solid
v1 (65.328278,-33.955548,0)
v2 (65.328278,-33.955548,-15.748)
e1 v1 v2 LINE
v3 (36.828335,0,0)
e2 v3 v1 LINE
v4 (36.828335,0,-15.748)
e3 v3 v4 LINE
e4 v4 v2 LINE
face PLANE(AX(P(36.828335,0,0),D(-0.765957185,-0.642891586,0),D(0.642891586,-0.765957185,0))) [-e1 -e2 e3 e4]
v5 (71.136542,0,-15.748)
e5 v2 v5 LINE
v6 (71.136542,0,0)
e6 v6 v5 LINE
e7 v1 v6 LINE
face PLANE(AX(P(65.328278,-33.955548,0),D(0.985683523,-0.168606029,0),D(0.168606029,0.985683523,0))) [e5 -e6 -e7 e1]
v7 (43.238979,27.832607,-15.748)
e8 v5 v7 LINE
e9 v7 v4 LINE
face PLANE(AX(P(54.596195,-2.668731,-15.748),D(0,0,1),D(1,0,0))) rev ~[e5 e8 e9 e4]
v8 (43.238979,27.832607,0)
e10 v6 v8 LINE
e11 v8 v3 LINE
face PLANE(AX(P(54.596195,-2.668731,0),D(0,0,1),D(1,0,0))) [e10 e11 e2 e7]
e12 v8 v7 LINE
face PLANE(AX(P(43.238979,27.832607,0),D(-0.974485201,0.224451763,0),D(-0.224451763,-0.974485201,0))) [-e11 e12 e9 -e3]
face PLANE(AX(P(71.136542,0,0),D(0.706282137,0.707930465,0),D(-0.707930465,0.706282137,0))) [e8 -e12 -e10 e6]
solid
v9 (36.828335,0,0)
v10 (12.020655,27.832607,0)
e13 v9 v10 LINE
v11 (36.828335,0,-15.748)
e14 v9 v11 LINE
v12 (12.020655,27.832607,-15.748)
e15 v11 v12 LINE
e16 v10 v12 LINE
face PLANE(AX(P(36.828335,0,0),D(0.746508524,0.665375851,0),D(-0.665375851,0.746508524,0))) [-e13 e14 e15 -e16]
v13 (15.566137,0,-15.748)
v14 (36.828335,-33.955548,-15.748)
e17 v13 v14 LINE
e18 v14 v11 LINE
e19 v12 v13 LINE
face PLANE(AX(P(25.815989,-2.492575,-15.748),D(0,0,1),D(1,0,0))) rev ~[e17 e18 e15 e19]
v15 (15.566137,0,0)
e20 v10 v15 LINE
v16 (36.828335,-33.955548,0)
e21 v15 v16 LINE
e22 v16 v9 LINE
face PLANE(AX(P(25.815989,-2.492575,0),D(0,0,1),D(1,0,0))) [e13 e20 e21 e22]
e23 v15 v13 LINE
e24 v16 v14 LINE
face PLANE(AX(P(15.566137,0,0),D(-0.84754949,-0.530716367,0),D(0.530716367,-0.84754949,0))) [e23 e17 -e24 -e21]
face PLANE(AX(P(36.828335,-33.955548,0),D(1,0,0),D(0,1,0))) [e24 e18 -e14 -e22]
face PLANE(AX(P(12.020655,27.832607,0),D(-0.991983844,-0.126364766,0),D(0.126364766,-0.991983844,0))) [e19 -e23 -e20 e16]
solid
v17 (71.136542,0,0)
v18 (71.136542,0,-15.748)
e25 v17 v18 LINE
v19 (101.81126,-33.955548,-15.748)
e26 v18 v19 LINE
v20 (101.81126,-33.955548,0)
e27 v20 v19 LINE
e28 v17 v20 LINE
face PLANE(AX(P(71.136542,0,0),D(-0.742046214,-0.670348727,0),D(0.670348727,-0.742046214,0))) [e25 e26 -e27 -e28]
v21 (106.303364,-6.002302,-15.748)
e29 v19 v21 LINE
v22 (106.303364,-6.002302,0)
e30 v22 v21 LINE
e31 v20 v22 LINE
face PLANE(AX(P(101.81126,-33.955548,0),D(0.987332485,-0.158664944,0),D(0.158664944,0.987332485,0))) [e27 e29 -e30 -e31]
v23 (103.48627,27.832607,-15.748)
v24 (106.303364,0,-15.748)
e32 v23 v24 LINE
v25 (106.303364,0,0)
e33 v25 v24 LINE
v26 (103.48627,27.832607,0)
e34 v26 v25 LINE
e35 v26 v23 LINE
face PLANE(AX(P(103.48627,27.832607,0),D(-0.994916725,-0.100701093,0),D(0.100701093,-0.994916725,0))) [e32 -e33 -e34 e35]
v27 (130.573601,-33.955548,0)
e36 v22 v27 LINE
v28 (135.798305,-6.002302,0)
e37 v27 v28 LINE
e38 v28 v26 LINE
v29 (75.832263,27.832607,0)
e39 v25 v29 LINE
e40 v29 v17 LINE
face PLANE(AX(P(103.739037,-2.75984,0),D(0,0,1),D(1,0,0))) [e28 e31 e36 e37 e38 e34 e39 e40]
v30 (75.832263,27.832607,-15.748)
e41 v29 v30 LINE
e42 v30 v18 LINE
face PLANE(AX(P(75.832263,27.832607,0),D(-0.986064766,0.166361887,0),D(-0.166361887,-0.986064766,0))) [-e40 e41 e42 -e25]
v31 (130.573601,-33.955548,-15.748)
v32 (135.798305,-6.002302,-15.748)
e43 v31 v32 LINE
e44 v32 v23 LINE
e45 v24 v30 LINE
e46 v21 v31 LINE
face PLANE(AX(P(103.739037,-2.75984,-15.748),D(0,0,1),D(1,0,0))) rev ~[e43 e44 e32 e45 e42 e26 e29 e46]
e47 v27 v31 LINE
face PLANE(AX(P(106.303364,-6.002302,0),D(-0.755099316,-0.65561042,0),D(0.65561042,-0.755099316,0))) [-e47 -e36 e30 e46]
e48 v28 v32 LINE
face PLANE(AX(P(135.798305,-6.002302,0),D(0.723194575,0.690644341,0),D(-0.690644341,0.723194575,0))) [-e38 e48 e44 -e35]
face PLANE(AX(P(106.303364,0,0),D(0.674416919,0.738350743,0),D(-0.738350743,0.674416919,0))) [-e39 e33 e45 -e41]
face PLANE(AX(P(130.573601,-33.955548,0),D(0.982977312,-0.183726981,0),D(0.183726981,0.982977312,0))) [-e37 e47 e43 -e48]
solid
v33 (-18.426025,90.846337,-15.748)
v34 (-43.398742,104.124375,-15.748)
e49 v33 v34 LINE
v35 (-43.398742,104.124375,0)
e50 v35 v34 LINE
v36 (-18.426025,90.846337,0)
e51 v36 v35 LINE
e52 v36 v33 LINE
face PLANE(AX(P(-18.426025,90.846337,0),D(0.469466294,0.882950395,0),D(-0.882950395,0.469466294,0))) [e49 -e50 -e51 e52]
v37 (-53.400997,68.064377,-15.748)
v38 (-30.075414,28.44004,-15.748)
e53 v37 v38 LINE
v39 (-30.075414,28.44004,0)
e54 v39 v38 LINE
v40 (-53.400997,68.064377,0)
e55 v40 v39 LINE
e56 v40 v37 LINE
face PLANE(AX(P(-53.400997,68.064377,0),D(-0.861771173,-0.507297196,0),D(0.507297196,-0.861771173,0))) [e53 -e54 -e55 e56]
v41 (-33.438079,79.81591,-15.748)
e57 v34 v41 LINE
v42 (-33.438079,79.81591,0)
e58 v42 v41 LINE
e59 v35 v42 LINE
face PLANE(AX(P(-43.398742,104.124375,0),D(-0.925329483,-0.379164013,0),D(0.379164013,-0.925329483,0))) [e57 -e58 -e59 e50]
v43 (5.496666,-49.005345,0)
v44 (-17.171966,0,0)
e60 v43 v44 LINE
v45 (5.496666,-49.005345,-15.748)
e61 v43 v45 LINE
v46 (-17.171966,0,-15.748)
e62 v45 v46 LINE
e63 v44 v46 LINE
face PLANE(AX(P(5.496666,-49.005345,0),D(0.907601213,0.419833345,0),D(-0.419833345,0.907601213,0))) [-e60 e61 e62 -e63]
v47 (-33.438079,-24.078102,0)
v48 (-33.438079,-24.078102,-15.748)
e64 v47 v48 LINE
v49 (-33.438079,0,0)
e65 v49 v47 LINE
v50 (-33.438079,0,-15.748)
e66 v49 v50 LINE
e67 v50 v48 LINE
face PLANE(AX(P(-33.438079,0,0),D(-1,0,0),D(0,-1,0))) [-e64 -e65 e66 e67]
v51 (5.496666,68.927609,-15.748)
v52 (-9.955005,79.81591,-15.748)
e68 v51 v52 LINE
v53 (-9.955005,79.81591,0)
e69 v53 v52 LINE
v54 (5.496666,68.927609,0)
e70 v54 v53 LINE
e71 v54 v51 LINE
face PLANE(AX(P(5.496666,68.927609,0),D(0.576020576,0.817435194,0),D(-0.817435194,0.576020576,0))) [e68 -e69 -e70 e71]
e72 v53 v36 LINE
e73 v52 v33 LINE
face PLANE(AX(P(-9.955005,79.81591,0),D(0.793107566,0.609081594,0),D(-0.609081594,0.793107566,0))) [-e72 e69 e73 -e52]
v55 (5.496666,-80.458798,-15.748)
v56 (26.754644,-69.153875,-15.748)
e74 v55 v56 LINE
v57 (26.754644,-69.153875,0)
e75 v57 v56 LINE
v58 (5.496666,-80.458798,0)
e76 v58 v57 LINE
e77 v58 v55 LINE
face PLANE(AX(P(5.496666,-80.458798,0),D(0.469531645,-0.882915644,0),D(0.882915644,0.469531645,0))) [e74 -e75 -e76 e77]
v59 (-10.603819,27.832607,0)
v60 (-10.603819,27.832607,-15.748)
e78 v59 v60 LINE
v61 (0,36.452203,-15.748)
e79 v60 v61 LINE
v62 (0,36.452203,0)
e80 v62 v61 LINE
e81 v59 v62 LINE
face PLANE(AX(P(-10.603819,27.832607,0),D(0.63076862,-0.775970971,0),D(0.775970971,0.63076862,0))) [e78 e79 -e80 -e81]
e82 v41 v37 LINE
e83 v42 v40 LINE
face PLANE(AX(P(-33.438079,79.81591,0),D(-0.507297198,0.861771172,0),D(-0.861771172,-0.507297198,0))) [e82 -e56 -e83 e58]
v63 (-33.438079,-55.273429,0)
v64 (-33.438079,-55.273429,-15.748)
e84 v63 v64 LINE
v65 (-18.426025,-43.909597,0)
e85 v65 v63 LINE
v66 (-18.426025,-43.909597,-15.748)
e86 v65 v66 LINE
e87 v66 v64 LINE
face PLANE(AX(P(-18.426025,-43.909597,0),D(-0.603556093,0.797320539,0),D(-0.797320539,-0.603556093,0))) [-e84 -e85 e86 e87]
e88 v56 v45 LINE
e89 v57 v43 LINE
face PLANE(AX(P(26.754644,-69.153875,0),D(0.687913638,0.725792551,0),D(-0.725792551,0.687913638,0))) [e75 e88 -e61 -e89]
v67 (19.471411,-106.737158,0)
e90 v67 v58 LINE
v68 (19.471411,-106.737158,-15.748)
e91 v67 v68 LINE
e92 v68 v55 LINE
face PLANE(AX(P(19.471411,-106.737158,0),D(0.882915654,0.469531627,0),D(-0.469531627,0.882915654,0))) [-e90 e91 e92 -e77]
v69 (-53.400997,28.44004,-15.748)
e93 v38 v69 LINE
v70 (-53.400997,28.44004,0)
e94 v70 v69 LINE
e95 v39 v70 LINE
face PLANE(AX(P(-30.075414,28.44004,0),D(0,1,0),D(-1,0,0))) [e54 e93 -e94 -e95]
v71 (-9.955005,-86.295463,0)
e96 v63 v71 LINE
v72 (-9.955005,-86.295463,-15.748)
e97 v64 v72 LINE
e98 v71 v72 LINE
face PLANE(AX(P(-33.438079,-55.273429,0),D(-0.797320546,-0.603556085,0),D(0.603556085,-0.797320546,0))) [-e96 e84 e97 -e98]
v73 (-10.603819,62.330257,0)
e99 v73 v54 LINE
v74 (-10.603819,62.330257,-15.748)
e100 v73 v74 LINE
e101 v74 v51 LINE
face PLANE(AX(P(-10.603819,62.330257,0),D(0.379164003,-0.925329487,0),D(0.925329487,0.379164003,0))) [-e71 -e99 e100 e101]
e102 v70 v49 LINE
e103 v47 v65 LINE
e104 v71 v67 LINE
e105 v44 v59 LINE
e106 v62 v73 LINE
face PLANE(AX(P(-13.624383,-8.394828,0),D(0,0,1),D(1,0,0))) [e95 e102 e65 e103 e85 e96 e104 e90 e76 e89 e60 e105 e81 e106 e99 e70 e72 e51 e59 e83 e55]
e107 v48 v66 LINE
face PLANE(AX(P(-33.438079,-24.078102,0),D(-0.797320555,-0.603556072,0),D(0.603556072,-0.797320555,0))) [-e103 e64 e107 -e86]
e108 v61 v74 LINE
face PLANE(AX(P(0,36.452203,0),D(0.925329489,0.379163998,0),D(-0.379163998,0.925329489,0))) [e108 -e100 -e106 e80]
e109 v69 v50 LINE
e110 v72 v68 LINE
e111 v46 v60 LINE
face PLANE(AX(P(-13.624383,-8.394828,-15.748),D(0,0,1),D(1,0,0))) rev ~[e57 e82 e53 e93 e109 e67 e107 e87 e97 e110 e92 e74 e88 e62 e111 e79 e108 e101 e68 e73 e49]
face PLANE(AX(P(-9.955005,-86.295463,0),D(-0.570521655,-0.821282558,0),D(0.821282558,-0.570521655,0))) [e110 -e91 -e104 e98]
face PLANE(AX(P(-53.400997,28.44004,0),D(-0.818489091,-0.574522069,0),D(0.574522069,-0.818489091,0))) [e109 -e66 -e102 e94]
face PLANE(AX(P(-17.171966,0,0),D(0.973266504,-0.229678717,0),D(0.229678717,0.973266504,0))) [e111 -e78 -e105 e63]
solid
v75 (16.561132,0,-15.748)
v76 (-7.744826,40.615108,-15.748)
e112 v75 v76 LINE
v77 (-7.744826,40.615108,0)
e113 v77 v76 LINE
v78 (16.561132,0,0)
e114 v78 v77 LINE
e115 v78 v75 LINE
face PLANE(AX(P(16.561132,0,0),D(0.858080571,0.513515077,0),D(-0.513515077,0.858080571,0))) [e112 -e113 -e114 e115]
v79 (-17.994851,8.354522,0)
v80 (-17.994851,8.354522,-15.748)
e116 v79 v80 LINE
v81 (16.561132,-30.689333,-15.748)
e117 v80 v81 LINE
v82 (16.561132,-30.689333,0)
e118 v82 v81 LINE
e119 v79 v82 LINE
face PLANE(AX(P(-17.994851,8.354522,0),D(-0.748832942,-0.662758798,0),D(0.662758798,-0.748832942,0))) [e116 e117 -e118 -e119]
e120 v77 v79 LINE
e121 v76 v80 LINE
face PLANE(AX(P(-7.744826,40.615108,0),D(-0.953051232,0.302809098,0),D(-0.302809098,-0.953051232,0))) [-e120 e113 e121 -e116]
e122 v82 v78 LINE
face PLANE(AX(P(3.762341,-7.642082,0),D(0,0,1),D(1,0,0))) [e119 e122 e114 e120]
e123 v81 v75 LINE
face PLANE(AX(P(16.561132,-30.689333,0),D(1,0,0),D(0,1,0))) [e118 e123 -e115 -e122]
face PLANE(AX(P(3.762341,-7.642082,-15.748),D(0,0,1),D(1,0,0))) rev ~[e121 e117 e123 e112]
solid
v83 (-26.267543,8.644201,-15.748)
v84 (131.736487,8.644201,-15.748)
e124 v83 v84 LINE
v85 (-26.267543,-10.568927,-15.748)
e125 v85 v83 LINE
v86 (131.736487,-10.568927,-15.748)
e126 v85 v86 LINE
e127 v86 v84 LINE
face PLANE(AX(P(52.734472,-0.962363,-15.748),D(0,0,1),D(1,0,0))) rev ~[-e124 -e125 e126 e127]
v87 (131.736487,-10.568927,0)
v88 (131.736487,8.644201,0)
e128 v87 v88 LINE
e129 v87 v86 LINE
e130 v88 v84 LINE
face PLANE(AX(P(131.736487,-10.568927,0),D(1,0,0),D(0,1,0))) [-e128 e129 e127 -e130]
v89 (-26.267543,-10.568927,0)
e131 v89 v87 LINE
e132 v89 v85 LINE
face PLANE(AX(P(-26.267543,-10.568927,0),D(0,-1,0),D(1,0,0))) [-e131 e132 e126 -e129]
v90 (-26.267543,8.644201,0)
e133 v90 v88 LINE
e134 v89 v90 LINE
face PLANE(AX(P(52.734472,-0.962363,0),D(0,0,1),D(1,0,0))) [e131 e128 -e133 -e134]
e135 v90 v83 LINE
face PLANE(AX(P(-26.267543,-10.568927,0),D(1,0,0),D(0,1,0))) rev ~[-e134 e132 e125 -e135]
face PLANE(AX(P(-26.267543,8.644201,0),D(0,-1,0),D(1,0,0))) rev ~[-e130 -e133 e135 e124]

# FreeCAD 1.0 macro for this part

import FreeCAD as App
import Part
import Sketcher
Q = App.Units.Quantity


def add_polygon(sketch, points):
    """Adds a closed chain of lines whose ends are joined by coincident constraints."""
    first, n = sketch.GeometryCount, len(points)
    for a, b in zip(points, points[1:] + points[:1]):
        sketch.addGeometry(Part.LineSegment(App.Vector(*a, 0), App.Vector(*b, 0)), False)
    for i in range(n):
        sketch.addConstraint(Sketcher.Constraint("Coincident", first + i, 2, first + (i + 1) % n, 1))

doc = App.newDocument("Part")
params = doc.addObject("Spreadsheet::Sheet", "Params")
for row, (alias, value) in enumerate([
    ("pad1_length", "0.62 in"),
    ("pad2_length", "0.62 in"),
    ("pad3_length", "0.62 in"),
], start=1):
    params.set(f"A{row}", alias)
    params.set(f"B{row}", "=" + value)
    params.setAlias(f"B{row}", alias)

body = doc.addObject("PartDesign::Body", "Body")
body.AllowCompound = True

# Sketch on XY plane
sketch1 = body.newObject("Sketcher::SketchObject", "Sketch")
sketch1.AttachmentSupport = (doc.getObject("XY_Plane"), [""])
sketch1.MapMode = "FlatFace"
add_polygon(sketch1, [(5.496666, -49.005345), (-17.171966, 0), (-10.603819, 27.832607), (0, 36.452203), (-10.603819, 62.330257), (5.496666, 68.927609), (-9.955005, 79.81591), (-18.426025, 90.846337), (-43.398742, 104.124375), (-33.438079, 79.81591), (-53.400997, 68.064377), (-30.075414, 28.44004), (-53.400997, 28.44004), (-33.438079, 0), (-33.438079, -24.078102), (-18.426025, -43.909597), (-33.438079, -55.273429), (-9.955005, -86.295463), (19.471411, -106.737158), (5.496666, -80.458798), (26.754644, -69.153875)])  # lines 0-20
add_polygon(sketch1, [(12.020655, 27.832607), (15.566137, 0), (36.828335, -33.955548), (36.828335, 0)])  # lines 21-24
add_polygon(sketch1, [(43.238979, 27.832607), (36.828335, 0), (65.328278, -33.955548), (71.136542, 0)])  # lines 25-28
add_polygon(sketch1, [(75.832263, 27.832607), (71.136542, 0), (101.81126, -33.955548), (106.303364, -6.002302), (130.573601, -33.955548), (135.798305, -6.002302), (103.48627, 27.832607), (106.303364, 0)])  # lines 29-36
sketch1.addConstraint([
    Sketcher.Constraint("Horizontal", 11),
    Sketcher.Constraint("Vertical", 13),
    Sketcher.Constraint("Vertical", 23),
    Sketcher.Constraint("Coincident", 25, 2, 23, 2),
    Sketcher.Constraint("Coincident", 29, 2, 27, 2),
    Sketcher.Constraint("PointOnObject", 0, 2, -1),
    Sketcher.Constraint("PointOnObject", 2, 2, -2),
    Sketcher.Constraint("PointOnObject", 12, 2, -1),
    Sketcher.Constraint("PointOnObject", 21, 2, -1),
    Sketcher.Constraint("PointOnObject", 23, 2, -1),
    Sketcher.Constraint("PointOnObject", 27, 2, -1),
    Sketcher.Constraint("PointOnObject", 35, 2, -1),
    Sketcher.Constraint("Perpendicular", 3, 4),
    Sketcher.Constraint("Perpendicular", 4, 8),
    Sketcher.Constraint("Perpendicular", 9, 10),
    Sketcher.Constraint("Perpendicular", 14, 15),
    Sketcher.Constraint("Perpendicular", 15, 16),
    Sketcher.Constraint("Perpendicular", 18, 19),
    Sketcher.Constraint("Horizontal", 5, 2, 8, 2),
    Sketcher.Constraint("Horizontal", 1, 2, 24, 2),
    Sketcher.Constraint("Horizontal", 22, 2, 26, 2),
    Sketcher.Constraint("Horizontal", 24, 2, 28, 2),
    Sketcher.Constraint("Horizontal", 26, 2, 30, 2),
    Sketcher.Constraint("Horizontal", 30, 2, 32, 2),
    Sketcher.Constraint("Horizontal", 31, 2, 33, 2),
    Sketcher.Constraint("Horizontal", 28, 2, 34, 2),
    Sketcher.Constraint("Horizontal", 34, 2, 36, 2),
    Sketcher.Constraint("Vertical", 1, 2, 3, 2),
    Sketcher.Constraint("Vertical", 9, 2, 11, 2),
    Sketcher.Constraint("Vertical", 8, 2, 12, 2),
    Sketcher.Constraint("Vertical", 6, 2, 14, 2),
    Sketcher.Constraint("Vertical", 13, 2, 15, 2),
    Sketcher.Constraint("Vertical", 5, 2, 16, 2),
    Sketcher.Constraint("Vertical", 4, 2, 18, 2),
    Sketcher.Constraint("Vertical", 18, 2, 20, 2),
    Sketcher.Constraint("Vertical", 31, 2, 35, 2),
    Sketcher.Constraint("DistanceY", -1, 1, 9, 2, Q("2.6796999 in")),
    Sketcher.Constraint("DistanceX", 12, 2, 21, 2, Q("1.9292998 in")),
    Sketcher.Constraint("DistanceX", 28, 2, 36, 2, Q("1.2832002 in")),
    Sketcher.Constraint("Distance", 12, Q("34.746999 mm")),
    Sketcher.Constraint("DistanceY", 18, 2, -1, 1, Q("80.458798 mm")),
    Sketcher.Constraint("DistanceX", -1, 1, 32, 2, Q("130.573601 mm")),
    Sketcher.Constraint("DistanceY", 4, 2, 5, 2, Q("10.888301 mm")),
    Sketcher.Constraint("DistanceY", 9, 2, 7, 2, Q("36.059998 mm")),
    Sketcher.Constraint("DistanceY", 18, 2, 14, 2, Q("36.549201 mm")),
    Sketcher.Constraint("DistanceX", 21, 2, 22, 2, Q("21.262198 mm")),
    Sketcher.Constraint("DistanceX", 0, 2, 23, 2, Q("54.000301 mm")),
    Sketcher.Constraint("DistanceX", 36, 2, 35, 2, Q("30.471101 mm")),
    Sketcher.Constraint("Distance", 0, Q("53.994358 mm")),
    Sketcher.Constraint("Distance", 4, Q("17.399732 mm")),
    Sketcher.Constraint("Distance", 7, Q("28.283262 mm")),
    Sketcher.Constraint("Distance", 15, Q("18.828129 mm")),
    Sketcher.Constraint("Distance", 17, Q("35.829832 mm")),
    Sketcher.Constraint("Distance", 18, Q("29.76316 mm")),
    Sketcher.Constraint("Distance", 19, Q("24.07702 mm")),
    Sketcher.Constraint("Distance", 20, Q("29.289331 mm")),
    Sketcher.Constraint("Distance", 21, Q("28.05752 mm")),
    Sketcher.Constraint("Distance", 24, Q("37.28371 mm")),
    Sketcher.Constraint("Distance", 26, Q("44.33087 mm")),
    Sketcher.Constraint("Distance", 35, Q("27.974811 mm")),
    Sketcher.Constraint("DistanceX", 11, 2, 11, 1, Q("23.325583 mm")),
    Sketcher.Constraint("DistanceY", 13, 2, 13, 1, Q("24.078102 mm")),
    Sketcher.Constraint("DistanceY", 23, 1, 23, 2, Q("33.955548 mm")),
    Sketcher.Constraint("DistanceX", 1, 2, -1, 1, Q("10.603819 mm")),
    Sketcher.Constraint("DistanceY", -1, 1, 4, 2, Q("68.927609 mm")),
    Sketcher.Constraint("DistanceX", 8, 2, -1, 1, Q("33.438079 mm")),
    Sketcher.Constraint("DistanceX", -1, 1, 17, 2, Q("19.471411 mm")),
    Sketcher.Constraint("DistanceX", -1, 1, 28, 2, Q("43.238979 mm")),
    Sketcher.Constraint("DistanceX", -1, 1, 30, 2, Q("101.81126 mm")),
    Sketcher.Constraint("DistanceX", 27, 2, 31, 2, Q("35.166822 mm")),
    Sketcher.Constraint("DistanceX", 31, 2, 33, 2, Q("29.494941 mm")),
    Sketcher.Constraint("DistanceY", 31, 2, 34, 2, Q("33.834909 mm")),
])
pad1 = body.newObject("PartDesign::Pad", "Pad")
pad1.Profile = sketch1
pad1.setExpression("Length", "Params.pad1_length")
pad1.Reversed = True
body2 = doc.addObject("PartDesign::Body", "Body001")

# Sketch on XY plane
sketch2 = body2.newObject("Sketcher::SketchObject", "Sketch001")
sketch2.AttachmentSupport = (doc.getObject("XY_Plane001"), [""])
sketch2.MapMode = "FlatFace"
add_polygon(sketch2, [(16.561132, -30.689333), (16.561132, 0), (-7.744826, 40.615108), (-17.994851, 8.354522)])  # lines 0-3
sketch2.addConstraint([
    Sketcher.Constraint("Vertical", 0),
    Sketcher.Constraint("PointOnObject", 0, 2, -1),
    Sketcher.Constraint("Distance", 1, Q("47.332511 mm")),
    Sketcher.Constraint("DistanceY", 0, 1, 0, 2, Q("30.689333 mm")),
    Sketcher.Constraint("DistanceX", 2, 2, -1, 1, Q("17.994851 mm")),
    Sketcher.Constraint("DistanceY", -1, 1, 2, 2, Q("8.354522 mm")),
    Sketcher.Constraint("DistanceX", 1, 2, 0, 2, Q("24.305958 mm")),
    Sketcher.Constraint("Distance", 2, Q("33.849792 mm")),
])
pad2 = body2.newObject("PartDesign::Pad", "Pad001")
pad2.Profile = sketch2
pad2.setExpression("Length", "Params.pad2_length")
pad2.Reversed = True
body3 = doc.addObject("PartDesign::Body", "Body002")

# Sketch on XY plane
sketch3 = body3.newObject("Sketcher::SketchObject", "Sketch002")
sketch3.AttachmentSupport = (doc.getObject("XY_Plane002"), [""])
sketch3.MapMode = "FlatFace"
add_polygon(sketch3, [(-26.267543, 8.644201), (-26.267543, -10.568927), (131.736487, -10.568927), (131.736487, 8.644201)])  # lines 0-3
sketch3.addConstraint([
    Sketcher.Constraint("Vertical", 0),
    Sketcher.Constraint("Horizontal", 1),
    Sketcher.Constraint("Vertical", 2),
    Sketcher.Constraint("Horizontal", 3),
    Sketcher.Constraint("DistanceX", 1, 1, 1, 2, Q("158.00403 mm")),
    Sketcher.Constraint("DistanceY", 0, 2, 0, 1, Q("19.213128 mm")),
    Sketcher.Constraint("DistanceY", -1, 1, 2, 2, Q("8.644201 mm")),
    Sketcher.Constraint("DistanceX", 0, 2, -1, 1, Q("26.267543 mm")),
])
pad3 = body3.newObject("PartDesign::Pad", "Pad002")
pad3.Profile = sketch3
pad3.setExpression("Length", "Params.pad3_length")
pad3.Reversed = True

doc.recompute()
